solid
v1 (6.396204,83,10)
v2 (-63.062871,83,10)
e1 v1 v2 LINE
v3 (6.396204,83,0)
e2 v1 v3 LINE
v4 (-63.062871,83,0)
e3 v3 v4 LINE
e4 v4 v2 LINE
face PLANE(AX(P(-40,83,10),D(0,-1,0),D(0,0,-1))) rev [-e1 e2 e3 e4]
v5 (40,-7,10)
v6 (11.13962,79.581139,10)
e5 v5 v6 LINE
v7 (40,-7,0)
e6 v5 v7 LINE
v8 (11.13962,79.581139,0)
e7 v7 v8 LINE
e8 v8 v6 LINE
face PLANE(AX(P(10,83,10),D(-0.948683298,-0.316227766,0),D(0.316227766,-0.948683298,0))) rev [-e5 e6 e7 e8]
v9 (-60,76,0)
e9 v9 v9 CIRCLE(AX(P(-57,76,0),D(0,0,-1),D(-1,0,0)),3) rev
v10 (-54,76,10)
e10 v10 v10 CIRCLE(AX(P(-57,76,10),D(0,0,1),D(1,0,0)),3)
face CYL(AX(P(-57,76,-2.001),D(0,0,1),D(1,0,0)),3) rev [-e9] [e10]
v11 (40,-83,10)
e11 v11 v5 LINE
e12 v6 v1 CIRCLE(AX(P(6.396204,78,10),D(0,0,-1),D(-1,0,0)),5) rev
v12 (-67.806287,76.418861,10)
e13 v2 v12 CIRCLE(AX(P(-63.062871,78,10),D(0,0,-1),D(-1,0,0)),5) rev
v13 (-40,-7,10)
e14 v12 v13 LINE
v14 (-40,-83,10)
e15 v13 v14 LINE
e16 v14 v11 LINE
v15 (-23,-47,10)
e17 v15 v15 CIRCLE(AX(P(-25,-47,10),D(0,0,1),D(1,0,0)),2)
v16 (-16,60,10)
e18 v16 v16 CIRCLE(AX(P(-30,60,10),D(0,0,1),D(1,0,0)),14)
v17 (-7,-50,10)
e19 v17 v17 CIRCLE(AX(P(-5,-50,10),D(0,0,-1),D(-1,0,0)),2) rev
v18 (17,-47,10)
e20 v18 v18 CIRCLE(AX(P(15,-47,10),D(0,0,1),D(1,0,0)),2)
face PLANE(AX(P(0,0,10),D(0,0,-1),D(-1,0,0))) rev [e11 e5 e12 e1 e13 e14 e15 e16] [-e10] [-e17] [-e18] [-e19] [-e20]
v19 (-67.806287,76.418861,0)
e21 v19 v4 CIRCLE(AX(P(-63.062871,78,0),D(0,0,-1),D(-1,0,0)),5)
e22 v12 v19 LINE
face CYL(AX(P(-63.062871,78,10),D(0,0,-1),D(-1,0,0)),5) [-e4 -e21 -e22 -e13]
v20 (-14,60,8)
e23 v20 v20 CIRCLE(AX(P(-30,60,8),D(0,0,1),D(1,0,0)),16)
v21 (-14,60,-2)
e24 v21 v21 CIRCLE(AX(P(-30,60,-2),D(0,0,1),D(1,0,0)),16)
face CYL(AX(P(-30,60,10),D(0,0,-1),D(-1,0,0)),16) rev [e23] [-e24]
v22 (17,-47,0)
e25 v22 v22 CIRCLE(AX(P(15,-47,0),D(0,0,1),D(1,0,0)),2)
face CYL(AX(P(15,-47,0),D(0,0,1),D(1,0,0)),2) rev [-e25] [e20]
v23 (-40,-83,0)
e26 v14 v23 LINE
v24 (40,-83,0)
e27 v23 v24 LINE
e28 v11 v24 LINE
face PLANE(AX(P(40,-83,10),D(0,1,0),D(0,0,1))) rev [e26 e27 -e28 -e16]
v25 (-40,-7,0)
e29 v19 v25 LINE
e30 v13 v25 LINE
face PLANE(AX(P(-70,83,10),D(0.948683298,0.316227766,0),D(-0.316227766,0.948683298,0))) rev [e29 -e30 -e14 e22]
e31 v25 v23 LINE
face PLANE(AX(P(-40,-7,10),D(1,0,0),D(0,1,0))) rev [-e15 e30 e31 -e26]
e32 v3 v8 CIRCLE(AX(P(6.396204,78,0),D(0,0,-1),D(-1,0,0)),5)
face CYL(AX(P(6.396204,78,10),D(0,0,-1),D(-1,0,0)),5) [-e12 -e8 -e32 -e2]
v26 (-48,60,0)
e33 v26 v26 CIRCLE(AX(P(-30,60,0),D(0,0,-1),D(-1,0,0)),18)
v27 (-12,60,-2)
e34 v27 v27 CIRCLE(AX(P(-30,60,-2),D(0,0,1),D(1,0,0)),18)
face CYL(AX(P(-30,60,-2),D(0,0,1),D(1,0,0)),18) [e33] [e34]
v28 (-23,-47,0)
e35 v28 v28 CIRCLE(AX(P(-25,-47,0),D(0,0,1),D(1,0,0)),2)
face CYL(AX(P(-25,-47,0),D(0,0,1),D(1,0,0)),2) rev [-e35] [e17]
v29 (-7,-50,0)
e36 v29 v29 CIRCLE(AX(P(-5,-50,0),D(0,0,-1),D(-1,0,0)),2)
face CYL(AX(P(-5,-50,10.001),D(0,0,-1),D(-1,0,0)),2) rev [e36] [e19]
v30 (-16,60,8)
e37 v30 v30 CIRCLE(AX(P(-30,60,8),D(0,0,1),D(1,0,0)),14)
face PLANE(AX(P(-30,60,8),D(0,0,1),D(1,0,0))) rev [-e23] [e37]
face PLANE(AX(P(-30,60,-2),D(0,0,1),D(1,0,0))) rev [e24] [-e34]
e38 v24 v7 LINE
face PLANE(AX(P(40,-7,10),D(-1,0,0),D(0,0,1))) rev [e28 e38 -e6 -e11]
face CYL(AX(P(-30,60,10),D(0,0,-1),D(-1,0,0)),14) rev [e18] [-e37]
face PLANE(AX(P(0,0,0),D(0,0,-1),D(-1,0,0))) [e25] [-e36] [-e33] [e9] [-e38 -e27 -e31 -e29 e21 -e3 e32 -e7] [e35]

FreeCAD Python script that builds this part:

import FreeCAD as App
import Part
import Sketcher
Q = App.Units.Quantity


def edges_at(feature, points):
    """Names of the edges that pass closest to the given points."""
    edges = feature.Shape.Edges
    near = lambda p: min(range(len(edges)), key=lambda i: edges[i].distToShape(Part.Vertex(*p))[0])
    return sorted({f"Edge{near(p) + 1}" for p in points})


def add_polygon(sketch, points):
    """Adds a closed chain of lines whose ends are joined by coincident constraints."""
    first, n = sketch.GeometryCount, len(points)
    for a, b in zip(points, points[1:] + points[:1]):
        sketch.addGeometry(Part.LineSegment(App.Vector(*a, 0), App.Vector(*b, 0)), False)
    for i in range(n):
        sketch.addConstraint(Sketcher.Constraint("Coincident", first + i, 2, first + (i + 1) % n, 1))

doc = App.newDocument("Part")
body = doc.addObject("PartDesign::Body", "Body")

# Sketch on XY plane
sketch1 = body.newObject("Sketcher::SketchObject", "Sketch")
sketch1.AttachmentSupport = (doc.getObject("XY_Plane"), [""])
sketch1.MapMode = "FlatFace"
add_polygon(sketch1, [(-70, 83), (-40, -7), (-40, -83), (40, -83), (40, -7), (10, 83)])  # lines 0-5
sketch1.addGeometry(Part.Circle(App.Vector(-30, 60, 0), App.Vector(0, 0, 1), 16), False)  # 6
sketch1.addConstraint([
    Sketcher.Constraint("Vertical", 1),
    Sketcher.Constraint("Horizontal", 2),
    Sketcher.Constraint("Vertical", 3),
    Sketcher.Constraint("Horizontal", 5),
    Sketcher.Constraint("Symmetric", 0, 2, 3, 2, -2),
    Sketcher.Constraint("Parallel", 0, 4),
    Sketcher.Constraint("Diameter", 6, Q("32 mm")),
    Sketcher.Constraint("DistanceX", 2, 1, 2, 2, Q("80 mm")),
    Sketcher.Constraint("DistanceY", 1, 2, 1, 1, Q("76 mm")),
    Sketcher.Constraint("DistanceX", 6, 3, -1, 1, Q("30 mm")),
    Sketcher.Constraint("DistanceY", -1, 1, 6, 3, Q("60 mm")),
    Sketcher.Constraint("DistanceY", 0, 2, -1, 1, Q("7 mm")),
    Sketcher.Constraint("DistanceX", -1, 1, 4, 2, Q("10 mm")),
    Sketcher.Constraint("DistanceY", -1, 1, 4, 2, Q("83 mm")),
])
pad1 = body.newObject("PartDesign::Pad", "Pad")
pad1.Profile = sketch1
pad1.Length = 10

# Sketch on XY plane
sketch2 = body.newObject("Sketcher::SketchObject", "Sketch001")
sketch2.AttachmentSupport = (doc.getObject("XY_Plane"), [""])
sketch2.MapMode = "FlatFace"
sketch2.AttachmentOffset = App.Placement(App.Vector(0, 0, 10), App.Rotation())
sketch2.addGeometry([
    Part.Circle(App.Vector(-30, 60, 0), App.Vector(0, 0, 1), 18),
    Part.Circle(App.Vector(-30, 60, 0), App.Vector(0, 0, 1), 16),
], False)
sketch2.addConstraint([
    Sketcher.Constraint("Coincident", 1, 3, 0, 3),
    Sketcher.Constraint("Diameter", 0, Q("36 mm")),
    Sketcher.Constraint("Diameter", 1, Q("32 mm")),
    Sketcher.Constraint("DistanceX", 0, 3, -1, 1, Q("30 mm")),
    Sketcher.Constraint("DistanceY", -1, 1, 0, 3, Q("60 mm")),
])
pad2 = body.newObject("PartDesign::Pad", "Pad001")
pad2.Profile = sketch2
pad2.Length = 12
pad2.Reversed = True

# Sketch on XY plane
sketch3 = body.newObject("Sketcher::SketchObject", "Sketch002")
sketch3.AttachmentSupport = (doc.getObject("XY_Plane"), [""])
sketch3.MapMode = "FlatFace"
sketch3.AttachmentOffset = App.Placement(App.Vector(0, 0, 10), App.Rotation())
sketch3.addGeometry([
    Part.Circle(App.Vector(-25, -47, 0), App.Vector(0, 0, 1), 2),
    Part.Circle(App.Vector(15, -47, 0), App.Vector(0, 0, 1), 2),
], False)
sketch3.addConstraint([
    Sketcher.Constraint("Equal", 0, 1),
    Sketcher.Constraint("Horizontal", 0, 3, 1, 3),
    Sketcher.Constraint("Diameter", 0, Q("4 mm")),
    Sketcher.Constraint("DistanceX", 0, 3, -1, 1, Q("25 mm")),
    Sketcher.Constraint("DistanceY", 0, 3, -1, 1, Q("47 mm")),
    Sketcher.Constraint("DistanceX", -1, 1, 1, 3, Q("15 mm")),
])
pocket1 = body.newObject("PartDesign::Pocket", "Pocket")
pocket1.Profile = sketch3
pocket1.Length = 10

# Sketch on XY plane
sketch4 = body.newObject("Sketcher::SketchObject", "Sketch003")
sketch4.AttachmentSupport = (doc.getObject("XY_Plane"), [""])
sketch4.MapMode = "FlatFace"
sketch4.AttachmentOffset = App.Placement(App.Vector(0, 0, 10), App.Rotation())
sketch4.addGeometry(Part.Circle(App.Vector(-57, 76, 0), App.Vector(0, 0, 1), 3), False)
sketch4.addConstraint([
    Sketcher.Constraint("Diameter", 0, Q("6 mm")),
    Sketcher.Constraint("DistanceX", 0, 3, -1, 1, Q("57 mm")),
    Sketcher.Constraint("DistanceY", -1, 1, 0, 3, Q("76 mm")),
])
pocket2 = body.newObject("PartDesign::Pocket", "Pocket001")
pocket2.Profile = sketch4
pocket2.Type = "UpToFirst"

# Sketch on XY plane
sketch5 = body.newObject("Sketcher::SketchObject", "Sketch004")
sketch5.AttachmentSupport = (doc.getObject("XY_Plane"), [""])
sketch5.MapMode = "FlatFace"
sketch5.addGeometry(Part.Circle(App.Vector(-5, -50, 0), App.Vector(0, 0, 1), 2), False)
sketch5.addConstraint([
    Sketcher.Constraint("Diameter", 0, Q("4 mm")),
    Sketcher.Constraint("DistanceX", 0, 3, -1, 1, Q("5 mm")),
    Sketcher.Constraint("DistanceY", 0, 3, -1, 1, Q("50 mm")),
])
pocket3 = body.newObject("PartDesign::Pocket", "Pocket002")
pocket3.Profile = sketch5
pocket3.Type = "UpToFirst"
pocket3.Reversed = True
doc.recompute()

fillet = body.newObject("PartDesign::Fillet", "Fillet")
fillet.Base = (pocket3, edges_at(pocket3, [(-70, 83, 5), (10, 83, 5)]))
fillet.Radius = 5

# Sketch on XY plane
sketch6 = body.newObject("Sketcher::SketchObject", "Sketch005")
sketch6.AttachmentSupport = (doc.getObject("XY_Plane"), [""])
sketch6.MapMode = "FlatFace"
sketch6.AttachmentOffset = App.Placement(App.Vector(0, 0, 8), App.Rotation())
sketch6.addGeometry([
    Part.Circle(App.Vector(-30, 60, 0), App.Vector(0, 0, 1), 16),
    Part.Circle(App.Vector(-30, 60, 0), App.Vector(0, 0, 1), 14),
], False)
sketch6.addConstraint([
    Sketcher.Constraint("Coincident", 1, 3, 0, 3),
    Sketcher.Constraint("Diameter", 0, Q("32 mm")),
    Sketcher.Constraint("Diameter", 1, Q("28 mm")),
    Sketcher.Constraint("DistanceX", 0, 3, -1, 1, Q("30 mm")),
    Sketcher.Constraint("DistanceY", -1, 1, 0, 3, Q("60 mm")),
])
pad3 = body.newObject("PartDesign::Pad", "Pad002")
pad3.Profile = sketch6
pad3.Length = 2

doc.recompute()
